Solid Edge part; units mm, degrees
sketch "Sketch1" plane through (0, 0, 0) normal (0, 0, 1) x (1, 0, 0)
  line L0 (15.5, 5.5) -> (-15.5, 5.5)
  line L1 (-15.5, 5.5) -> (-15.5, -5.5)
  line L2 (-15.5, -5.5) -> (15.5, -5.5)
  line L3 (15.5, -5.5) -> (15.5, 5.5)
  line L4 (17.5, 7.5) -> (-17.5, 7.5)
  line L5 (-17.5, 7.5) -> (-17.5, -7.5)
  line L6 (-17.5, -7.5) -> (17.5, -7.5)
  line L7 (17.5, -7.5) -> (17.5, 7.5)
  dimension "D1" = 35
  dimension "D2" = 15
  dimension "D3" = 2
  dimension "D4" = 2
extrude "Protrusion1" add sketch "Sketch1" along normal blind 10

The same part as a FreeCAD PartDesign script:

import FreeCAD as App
import Part
import Sketcher
from FreeCAD import Vector


def add_polygon(sketch, points):
    """Adds a closed chain of lines whose ends are joined by coincident constraints."""
    first, n = sketch.GeometryCount, len(points)
    for a, b in zip(points, points[1:] + points[:1]):
        sketch.addGeometry(Part.LineSegment(App.Vector(*a, 0), App.Vector(*b, 0)), False)
    for i in range(n):
        sketch.addConstraint(Sketcher.Constraint("Coincident", first + i, 2, first + (i + 1) % n, 1))

doc = App.newDocument("Part")
body = doc.addObject("PartDesign::Body", "Body")

# Sketch on XY plane
sketch1 = body.newObject("Sketcher::SketchObject", "Sketch")
sketch1.AttachmentSupport = (doc.getObject("XY_Plane"), [""])
sketch1.MapMode = "FlatFace"
add_polygon(sketch1, [(18, -8), (18, 8), (-18, 8), (-18, -8)])  # lines 0-3
add_polygon(sketch1, [(-16, 6), (16, 6), (16, -6), (-16, -6)])  # lines 4-7
sketch1.addConstraint(Sketcher.Constraint("Vertical", 0))
sketch1.addConstraint(Sketcher.Constraint("Horizontal", 1))
sketch1.addConstraint(Sketcher.Constraint("Vertical", 2))
sketch1.addConstraint(Sketcher.Constraint("Horizontal", 3))
sketch1.addConstraint(Sketcher.Constraint("Horizontal", 4))
sketch1.addConstraint(Sketcher.Constraint("Vertical", 5))
sketch1.addConstraint(Sketcher.Constraint("Horizontal", 6))
sketch1.addConstraint(Sketcher.Constraint("Vertical", 7))
sketch1.addConstraint(Sketcher.Constraint("Symmetric", 0, 2, 2, 2, -1, 1))
sketch1.addConstraint(Sketcher.Constraint("Symmetric", 4, 2, 6, 2, -1, 1))
sketch1.addConstraint(Sketcher.Constraint("DistanceX", 1, 2, 1, 1, 35.0))
sketch1.addConstraint(Sketcher.Constraint("DistanceX", 4, 1, 4, 2, 31.0))
sketch1.addConstraint(Sketcher.Constraint("DistanceY", 0, 1, 0, 2, 15.0))
sketch1.addConstraint(Sketcher.Constraint("DistanceY", 5, 2, 5, 1, 11.0))
pad1 = body.newObject("PartDesign::Pad", "Pad")
pad1.Profile = sketch1
pad1.Length = 10

doc.recompute()
